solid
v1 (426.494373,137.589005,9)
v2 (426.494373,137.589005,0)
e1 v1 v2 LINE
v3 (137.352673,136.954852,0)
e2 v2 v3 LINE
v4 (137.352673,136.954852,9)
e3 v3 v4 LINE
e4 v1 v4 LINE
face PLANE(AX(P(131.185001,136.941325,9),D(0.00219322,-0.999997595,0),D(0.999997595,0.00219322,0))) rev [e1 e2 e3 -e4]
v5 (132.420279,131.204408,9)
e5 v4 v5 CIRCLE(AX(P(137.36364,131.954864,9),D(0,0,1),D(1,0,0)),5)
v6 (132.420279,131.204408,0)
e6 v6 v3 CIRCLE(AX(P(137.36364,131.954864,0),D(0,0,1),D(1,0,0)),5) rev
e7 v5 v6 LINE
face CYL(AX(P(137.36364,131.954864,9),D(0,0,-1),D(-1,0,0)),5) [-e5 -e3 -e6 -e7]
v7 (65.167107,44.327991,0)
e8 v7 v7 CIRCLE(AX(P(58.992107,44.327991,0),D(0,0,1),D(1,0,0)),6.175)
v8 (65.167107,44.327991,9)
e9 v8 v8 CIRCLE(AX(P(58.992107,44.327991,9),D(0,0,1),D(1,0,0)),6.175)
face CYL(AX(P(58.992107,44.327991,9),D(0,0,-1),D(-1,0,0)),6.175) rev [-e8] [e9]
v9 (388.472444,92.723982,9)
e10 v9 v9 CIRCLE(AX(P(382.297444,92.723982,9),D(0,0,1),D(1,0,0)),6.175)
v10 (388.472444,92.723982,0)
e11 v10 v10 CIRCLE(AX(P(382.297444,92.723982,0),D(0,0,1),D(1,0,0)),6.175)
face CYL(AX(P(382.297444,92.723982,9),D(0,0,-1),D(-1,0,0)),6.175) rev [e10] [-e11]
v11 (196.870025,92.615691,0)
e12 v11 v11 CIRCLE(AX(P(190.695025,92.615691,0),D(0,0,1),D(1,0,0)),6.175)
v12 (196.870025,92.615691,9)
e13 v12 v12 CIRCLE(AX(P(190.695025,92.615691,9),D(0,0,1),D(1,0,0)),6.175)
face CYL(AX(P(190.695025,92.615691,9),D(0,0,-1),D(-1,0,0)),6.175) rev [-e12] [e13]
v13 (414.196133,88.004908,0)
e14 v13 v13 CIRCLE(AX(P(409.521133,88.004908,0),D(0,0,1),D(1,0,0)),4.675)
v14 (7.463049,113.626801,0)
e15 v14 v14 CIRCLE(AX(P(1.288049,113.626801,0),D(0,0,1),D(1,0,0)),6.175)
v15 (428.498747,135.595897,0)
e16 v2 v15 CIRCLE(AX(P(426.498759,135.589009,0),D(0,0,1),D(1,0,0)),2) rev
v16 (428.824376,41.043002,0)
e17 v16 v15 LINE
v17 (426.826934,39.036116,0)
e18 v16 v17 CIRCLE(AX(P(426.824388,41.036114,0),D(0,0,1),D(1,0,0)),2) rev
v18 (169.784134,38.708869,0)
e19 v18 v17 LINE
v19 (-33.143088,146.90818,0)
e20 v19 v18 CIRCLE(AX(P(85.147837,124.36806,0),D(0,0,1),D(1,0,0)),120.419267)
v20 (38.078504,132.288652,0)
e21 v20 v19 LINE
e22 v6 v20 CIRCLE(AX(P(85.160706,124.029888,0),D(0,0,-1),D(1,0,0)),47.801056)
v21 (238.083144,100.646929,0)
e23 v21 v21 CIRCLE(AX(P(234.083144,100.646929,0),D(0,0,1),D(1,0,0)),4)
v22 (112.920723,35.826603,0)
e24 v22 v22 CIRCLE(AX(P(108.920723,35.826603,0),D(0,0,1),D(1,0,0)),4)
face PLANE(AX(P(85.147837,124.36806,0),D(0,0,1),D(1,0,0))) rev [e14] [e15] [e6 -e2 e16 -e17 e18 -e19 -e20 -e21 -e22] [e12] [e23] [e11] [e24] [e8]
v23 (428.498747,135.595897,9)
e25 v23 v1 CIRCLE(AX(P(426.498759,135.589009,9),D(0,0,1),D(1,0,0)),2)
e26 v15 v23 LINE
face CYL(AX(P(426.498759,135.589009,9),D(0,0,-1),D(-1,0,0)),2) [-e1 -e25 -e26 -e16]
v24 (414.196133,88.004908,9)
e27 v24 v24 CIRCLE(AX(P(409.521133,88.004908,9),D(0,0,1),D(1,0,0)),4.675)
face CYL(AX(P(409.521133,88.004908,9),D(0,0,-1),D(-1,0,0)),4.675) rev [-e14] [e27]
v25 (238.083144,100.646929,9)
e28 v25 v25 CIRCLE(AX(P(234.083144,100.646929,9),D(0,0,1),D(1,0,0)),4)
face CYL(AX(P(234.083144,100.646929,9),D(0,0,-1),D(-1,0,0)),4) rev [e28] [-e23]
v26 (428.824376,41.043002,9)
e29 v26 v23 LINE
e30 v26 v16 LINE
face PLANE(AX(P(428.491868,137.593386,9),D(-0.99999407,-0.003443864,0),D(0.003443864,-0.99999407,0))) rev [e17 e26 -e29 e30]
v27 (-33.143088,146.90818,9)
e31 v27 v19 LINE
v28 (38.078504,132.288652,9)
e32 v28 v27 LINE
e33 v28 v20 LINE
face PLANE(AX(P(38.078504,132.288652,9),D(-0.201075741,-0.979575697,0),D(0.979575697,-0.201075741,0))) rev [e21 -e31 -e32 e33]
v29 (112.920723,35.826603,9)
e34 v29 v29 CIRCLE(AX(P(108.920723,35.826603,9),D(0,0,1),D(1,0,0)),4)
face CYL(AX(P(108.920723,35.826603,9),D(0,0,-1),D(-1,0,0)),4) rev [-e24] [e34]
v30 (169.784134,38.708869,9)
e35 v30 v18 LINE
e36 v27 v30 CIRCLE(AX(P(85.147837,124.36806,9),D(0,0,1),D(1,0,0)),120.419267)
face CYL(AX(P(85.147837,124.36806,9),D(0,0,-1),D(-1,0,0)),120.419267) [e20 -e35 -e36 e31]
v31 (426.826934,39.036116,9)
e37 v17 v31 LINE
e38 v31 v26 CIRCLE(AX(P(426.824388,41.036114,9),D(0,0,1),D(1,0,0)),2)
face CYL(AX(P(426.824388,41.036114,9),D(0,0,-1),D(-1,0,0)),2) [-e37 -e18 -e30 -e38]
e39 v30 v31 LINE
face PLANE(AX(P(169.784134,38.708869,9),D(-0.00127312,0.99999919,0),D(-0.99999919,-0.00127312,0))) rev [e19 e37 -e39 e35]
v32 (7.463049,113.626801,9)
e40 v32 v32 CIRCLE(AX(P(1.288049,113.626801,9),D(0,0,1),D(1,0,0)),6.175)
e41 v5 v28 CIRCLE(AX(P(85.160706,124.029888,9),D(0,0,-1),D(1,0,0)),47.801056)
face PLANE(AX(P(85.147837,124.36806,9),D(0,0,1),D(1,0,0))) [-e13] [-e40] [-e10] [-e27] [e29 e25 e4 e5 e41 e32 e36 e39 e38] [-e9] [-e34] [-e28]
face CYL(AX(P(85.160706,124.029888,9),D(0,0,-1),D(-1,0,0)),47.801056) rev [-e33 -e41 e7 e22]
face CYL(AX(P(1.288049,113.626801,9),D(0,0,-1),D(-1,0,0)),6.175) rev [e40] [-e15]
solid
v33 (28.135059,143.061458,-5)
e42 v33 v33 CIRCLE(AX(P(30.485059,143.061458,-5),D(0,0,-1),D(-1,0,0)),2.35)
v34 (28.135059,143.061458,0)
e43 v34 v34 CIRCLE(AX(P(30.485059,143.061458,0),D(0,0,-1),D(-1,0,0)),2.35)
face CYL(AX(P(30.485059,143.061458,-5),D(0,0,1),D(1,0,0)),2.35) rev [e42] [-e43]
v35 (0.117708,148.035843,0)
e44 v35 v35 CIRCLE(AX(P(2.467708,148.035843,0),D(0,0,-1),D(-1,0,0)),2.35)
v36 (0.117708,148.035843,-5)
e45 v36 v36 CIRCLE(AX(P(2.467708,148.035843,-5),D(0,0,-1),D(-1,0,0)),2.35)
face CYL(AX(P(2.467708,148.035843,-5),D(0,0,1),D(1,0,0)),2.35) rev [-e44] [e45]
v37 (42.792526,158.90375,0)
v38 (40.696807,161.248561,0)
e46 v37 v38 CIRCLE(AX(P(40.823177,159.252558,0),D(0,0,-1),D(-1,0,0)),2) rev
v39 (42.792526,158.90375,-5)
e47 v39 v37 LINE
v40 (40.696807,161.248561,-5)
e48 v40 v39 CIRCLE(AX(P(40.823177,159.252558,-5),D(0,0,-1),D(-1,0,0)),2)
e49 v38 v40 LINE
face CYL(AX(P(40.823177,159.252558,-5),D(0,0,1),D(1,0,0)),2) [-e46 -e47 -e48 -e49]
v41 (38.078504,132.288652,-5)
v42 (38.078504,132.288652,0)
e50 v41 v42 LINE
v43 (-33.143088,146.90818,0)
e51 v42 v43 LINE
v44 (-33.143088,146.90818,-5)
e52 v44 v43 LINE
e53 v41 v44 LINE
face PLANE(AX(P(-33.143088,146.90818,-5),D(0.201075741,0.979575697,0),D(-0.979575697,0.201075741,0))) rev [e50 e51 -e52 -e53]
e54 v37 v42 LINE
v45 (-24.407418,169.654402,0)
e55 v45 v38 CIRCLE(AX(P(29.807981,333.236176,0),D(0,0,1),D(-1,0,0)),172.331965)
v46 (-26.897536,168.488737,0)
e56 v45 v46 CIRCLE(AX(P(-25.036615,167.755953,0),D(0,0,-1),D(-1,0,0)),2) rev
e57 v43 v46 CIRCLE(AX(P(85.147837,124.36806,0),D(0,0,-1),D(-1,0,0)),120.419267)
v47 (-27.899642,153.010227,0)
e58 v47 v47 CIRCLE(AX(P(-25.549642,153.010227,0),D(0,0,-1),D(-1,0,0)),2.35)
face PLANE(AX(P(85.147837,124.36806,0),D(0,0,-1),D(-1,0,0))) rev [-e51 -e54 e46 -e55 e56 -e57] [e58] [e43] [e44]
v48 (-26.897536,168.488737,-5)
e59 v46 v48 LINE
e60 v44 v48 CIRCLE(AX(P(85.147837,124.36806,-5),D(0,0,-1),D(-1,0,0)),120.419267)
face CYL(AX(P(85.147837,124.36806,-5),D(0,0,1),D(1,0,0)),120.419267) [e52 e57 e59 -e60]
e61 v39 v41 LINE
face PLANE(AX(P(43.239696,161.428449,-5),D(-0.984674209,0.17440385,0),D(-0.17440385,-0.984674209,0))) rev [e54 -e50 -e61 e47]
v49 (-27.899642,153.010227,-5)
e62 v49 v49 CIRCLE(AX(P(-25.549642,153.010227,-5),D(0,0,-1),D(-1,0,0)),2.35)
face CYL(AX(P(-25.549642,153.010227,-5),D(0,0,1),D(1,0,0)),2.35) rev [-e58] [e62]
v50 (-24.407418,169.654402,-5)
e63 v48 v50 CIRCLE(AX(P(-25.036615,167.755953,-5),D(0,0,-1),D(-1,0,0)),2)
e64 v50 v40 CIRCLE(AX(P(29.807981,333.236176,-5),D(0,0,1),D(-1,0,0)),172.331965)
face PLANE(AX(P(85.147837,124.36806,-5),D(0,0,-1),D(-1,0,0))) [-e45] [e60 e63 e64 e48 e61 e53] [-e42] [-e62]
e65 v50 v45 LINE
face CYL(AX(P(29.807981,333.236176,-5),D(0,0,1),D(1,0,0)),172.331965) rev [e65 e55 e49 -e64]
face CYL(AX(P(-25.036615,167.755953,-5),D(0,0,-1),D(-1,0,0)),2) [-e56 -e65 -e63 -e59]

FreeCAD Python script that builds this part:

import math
import FreeCAD as App
import Part
import Sketcher


def edges_at(feature, points):
    """Names of the edges that pass closest to the given points."""
    edges = feature.Shape.Edges
    near = lambda p: min(range(len(edges)), key=lambda i: edges[i].distToShape(Part.Vertex(*p))[0])
    return sorted({f"Edge{near(p) + 1}" for p in points})

doc = App.newDocument("Part")
body = doc.addObject("PartDesign::Body", "Body")

# Sketch on XY plane
sketch1 = body.newObject("Sketcher::SketchObject", "Sketch")
sketch1.AttachmentSupport = (doc.getObject("XY_Plane"), [""])
sketch1.MapMode = "FlatFace"
sketch1.addGeometry([
    Part.LineSegment(App.Vector(428.491868, 137.593386, 0), App.Vector(131.185001, 136.941325, 0)),  # 0
    Part.ArcOfCircle(Part.Circle(App.Vector(85.160706, 124.029888, 0), App.Vector(0, 0, 1), 47.801056), math.radians(170.050875), math.radians(375.67068)),  # 1
    Part.LineSegment(App.Vector(38.078504, 132.288652, 0), App.Vector(-33.143088, 146.90818, 0)),  # 2
    Part.ArcOfCircle(Part.Circle(App.Vector(85.147837, 124.36806, 0), App.Vector(0, 0, 1), 120.419267), math.radians(169.211722), math.radians(314.655853)),  # 3
    Part.LineSegment(App.Vector(169.784134, 38.708869, 0), App.Vector(428.831279, 39.038667, 0)),  # 4
    Part.LineSegment(App.Vector(428.831279, 39.038667, 0), App.Vector(428.491868, 137.593386, 0)),  # 5
    Part.Circle(App.Vector(108.920723, 35.826603, 0), App.Vector(0, 0, 1), 4),  # 6
    Part.Circle(App.Vector(58.992107, 44.327991, 0), App.Vector(0, 0, 1), 6.175),  # 7
    Part.Circle(App.Vector(409.521133, 88.004908, 0), App.Vector(0, 0, 1), 4.675),  # 8
    Part.Circle(App.Vector(382.297444, 92.723982, 0), App.Vector(0, 0, 1), 6.175),  # 9
    Part.Circle(App.Vector(234.083144, 100.646929, 0), App.Vector(0, 0, 1), 4),  # 10
    Part.Circle(App.Vector(190.695025, 92.615691, 0), App.Vector(0, 0, 1), 6.175),  # 11
    Part.Circle(App.Vector(1.288049, 113.626801, 0), App.Vector(0, 0, 1), 6.175),  # 12
], False)
sketch1.addConstraint([
    Sketcher.Constraint("Coincident", 0, 2, 1, 2),
    Sketcher.Constraint("Coincident", 1, 1, 2, 1),
    Sketcher.Constraint("Coincident", 2, 2, 3, 1),
    Sketcher.Constraint("Coincident", 3, 2, 4, 1),
    Sketcher.Constraint("Coincident", 4, 2, 5, 1),
    Sketcher.Constraint("Coincident", 5, 2, 0, 1),
    Sketcher.Constraint("Equal", 7, 9),
    Sketcher.Constraint("Equal", 6, 10),
    Sketcher.Constraint("Equal", 9, 11),
    Sketcher.Constraint("Equal", 11, 12),
    Sketcher.Constraint("Diameter", 6, 8.0),
    Sketcher.Constraint("Diameter", 7, 12.35),
    Sketcher.Constraint("Diameter", 8, 9.35),
    Sketcher.Constraint("DistanceX", -1, 1, 0, 2, 131.185001),
    Sketcher.Constraint("Radius", 1, 47.801056),
    Sketcher.Constraint("Radius", 3, 120.419267),
    Sketcher.Constraint("DistanceY", -1, 1, 12, 3, 113.626801),
    Sketcher.Constraint("DistanceX", 7, 3, 1, 3, 26.168599),
    Sketcher.Constraint("DistanceX", 10, 3, 9, 3, 148.2143),
    Sketcher.Constraint("DistanceY", 7, 3, 11, 3, 48.2877),
    Sketcher.Constraint("DistanceY", 6, 3, 12, 3, 77.800198),
    Sketcher.Constraint("DistanceY", 3, 2, 4, 2, 0.329798),
    Sketcher.Constraint("Distance", 0, 297.307582),
    Sketcher.Constraint("DistanceY", -1, 1, 3, 3, 124.36806),
    Sketcher.Constraint("DistanceY", -1, 1, 7, 3, 44.327991),
    Sketcher.Constraint("DistanceY", -1, 1, 10, 3, 100.646929),
    Sketcher.Constraint("DistanceX", -1, 1, 12, 3, 1.288049),
    Sketcher.Constraint("DistanceY", -1, 1, 1, 1, 132.288652),
    Sketcher.Constraint("DistanceY", -1, 1, 2, 2, 146.90818),
    Sketcher.Constraint("DistanceY", -1, 1, 3, 2, 38.708869),
    Sketcher.Constraint("DistanceX", -1, 1, 4, 2, 428.831279),
    Sketcher.Constraint("DistanceX", -1, 1, 5, 2, 428.491868),
    Sketcher.Constraint("DistanceX", 3, 3, 1, 3, 0.01287),
    Sketcher.Constraint("DistanceY", 1, 3, 3, 3, 0.338172),
    Sketcher.Constraint("DistanceX", 6, 3, 8, 3, 300.600411),
    Sketcher.Constraint("DistanceY", 8, 3, 1, 3, 36.02498),
    Sketcher.Constraint("DistanceX", 9, 3, 8, 3, 27.223689),
    Sketcher.Constraint("DistanceY", 6, 3, 9, 3, 56.89738),
    Sketcher.Constraint("DistanceX", 11, 3, 10, 3, 43.388119),
    Sketcher.Constraint("DistanceX", 1, 3, 11, 3, 105.534319),
    Sketcher.Constraint("DistanceX", 6, 3, 0, 2, 22.264279),
])
pad1 = body.newObject("PartDesign::Pad", "Pad")
pad1.Profile = sketch1
pad1.Length = 9
doc.recompute()

fillet = body.newObject("PartDesign::Fillet", "Fillet")
fillet.Base = (pad1, edges_at(pad1, [(131.185, 136.941, 4.5)]))
fillet.Radius = 5
doc.recompute()

fillet2 = body.newObject("PartDesign::Fillet", "Fillet001")
fillet2.Base = (fillet, edges_at(fillet, [(428.492, 137.593, 4.5), (428.831, 39.039, 4.5)]))
fillet2.Radius = 2
body2 = doc.addObject("PartDesign::Body", "Body001")

# Sketch on XY plane
sketch2 = body2.newObject("Sketcher::SketchObject", "Sketch001")
sketch2.AttachmentSupport = (doc.getObject("XY_Plane001"), [""])
sketch2.MapMode = "FlatFace"
sketch2.addGeometry([
    Part.LineSegment(App.Vector(43.2, 161.4, 0), App.Vector(38.1, 132.3, 0)),  # 0
    Part.LineSegment(App.Vector(38.1, 132.3, 0), App.Vector(-33.1, 146.9, 0)),  # 1
    Part.ArcOfCircle(Part.Circle(App.Vector(85.1, 124.4, 0), App.Vector(0, 0, 1), 120.4), math.radians(157.6), math.radians(169.21)),  # 2
    Part.ArcOfCircle(Part.Circle(App.Vector(29.8, 333.2, 0), App.Vector(0, 0, 1), 172.3), math.radians(-109), math.radians(-86)),  # 3
    Part.Circle(App.Vector(30.5, 143.1, 0), App.Vector(0, 0, 1), 2.4),  # 4
    Part.Circle(App.Vector(2.5, 148, 0), App.Vector(0, 0, 1), 2.4),  # 5
    Part.Circle(App.Vector(-25.5, 153, 0), App.Vector(0, 0, 1), 2.4),  # 6
], False)
sketch2.addConstraint([
    Sketcher.Constraint("Coincident", 0, 2, 1, 1),
    Sketcher.Constraint("Coincident", 1, 2, 2, 2),
    Sketcher.Constraint("Coincident", 2, 1, 3, 1),
    Sketcher.Constraint("Coincident", 3, 2, 0, 1),
    Sketcher.Constraint("Equal", 4, 5),
    Sketcher.Constraint("Equal", 5, 6),
    Sketcher.Constraint("Diameter", 4, 4.7),
    Sketcher.Constraint("Radius", 2, 120.419267),
    Sketcher.Constraint("Radius", 3, 172.331965),
    Sketcher.Constraint("DistanceY", 2, 3, 4, 3, 18.693399),
    Sketcher.Constraint("DistanceX", 6, 3, 4, 3, 56.034701),
    Sketcher.Constraint("DistanceX", 2, 1, 5, 3, 28.653701),
    Sketcher.Constraint("Distance", 0, 29.593339),
    Sketcher.Constraint("DistanceY", -1, 1, 2, 3, 124.36806),
    Sketcher.Constraint("DistanceX", -1, 1, 3, 3, 29.807981),
    Sketcher.Constraint("DistanceX", -1, 1, 4, 3, 30.485059),
    Sketcher.Constraint("DistanceX", -1, 1, 5, 3, 2.467708),
    Sketcher.Constraint("DistanceY", -1, 1, 0, 2, 132.288652),
    Sketcher.Constraint("DistanceY", -1, 1, 1, 2, 146.90818),
    Sketcher.Constraint("DistanceY", -1, 1, 2, 1, 170.25464),
    Sketcher.Constraint("DistanceY", -1, 1, 3, 2, 161.428449),
    Sketcher.Constraint("DistanceY", 4, 3, 6, 3, 9.948768),
    Sketcher.Constraint("DistanceY", 0, 2, 5, 3, 15.747191),
])
pad2 = body2.newObject("PartDesign::Pad", "Pad001")
pad2.Profile = sketch2
pad2.Length = 5
pad2.Reversed = True
doc.recompute()

fillet3 = body2.newObject("PartDesign::Fillet", "Fillet002")
fillet3.Base = (pad2, edges_at(pad2, [(43.24, 161.428, -2.5), (-26.186, 170.255, -2.5)]))
fillet3.Radius = 2

doc.recompute()
